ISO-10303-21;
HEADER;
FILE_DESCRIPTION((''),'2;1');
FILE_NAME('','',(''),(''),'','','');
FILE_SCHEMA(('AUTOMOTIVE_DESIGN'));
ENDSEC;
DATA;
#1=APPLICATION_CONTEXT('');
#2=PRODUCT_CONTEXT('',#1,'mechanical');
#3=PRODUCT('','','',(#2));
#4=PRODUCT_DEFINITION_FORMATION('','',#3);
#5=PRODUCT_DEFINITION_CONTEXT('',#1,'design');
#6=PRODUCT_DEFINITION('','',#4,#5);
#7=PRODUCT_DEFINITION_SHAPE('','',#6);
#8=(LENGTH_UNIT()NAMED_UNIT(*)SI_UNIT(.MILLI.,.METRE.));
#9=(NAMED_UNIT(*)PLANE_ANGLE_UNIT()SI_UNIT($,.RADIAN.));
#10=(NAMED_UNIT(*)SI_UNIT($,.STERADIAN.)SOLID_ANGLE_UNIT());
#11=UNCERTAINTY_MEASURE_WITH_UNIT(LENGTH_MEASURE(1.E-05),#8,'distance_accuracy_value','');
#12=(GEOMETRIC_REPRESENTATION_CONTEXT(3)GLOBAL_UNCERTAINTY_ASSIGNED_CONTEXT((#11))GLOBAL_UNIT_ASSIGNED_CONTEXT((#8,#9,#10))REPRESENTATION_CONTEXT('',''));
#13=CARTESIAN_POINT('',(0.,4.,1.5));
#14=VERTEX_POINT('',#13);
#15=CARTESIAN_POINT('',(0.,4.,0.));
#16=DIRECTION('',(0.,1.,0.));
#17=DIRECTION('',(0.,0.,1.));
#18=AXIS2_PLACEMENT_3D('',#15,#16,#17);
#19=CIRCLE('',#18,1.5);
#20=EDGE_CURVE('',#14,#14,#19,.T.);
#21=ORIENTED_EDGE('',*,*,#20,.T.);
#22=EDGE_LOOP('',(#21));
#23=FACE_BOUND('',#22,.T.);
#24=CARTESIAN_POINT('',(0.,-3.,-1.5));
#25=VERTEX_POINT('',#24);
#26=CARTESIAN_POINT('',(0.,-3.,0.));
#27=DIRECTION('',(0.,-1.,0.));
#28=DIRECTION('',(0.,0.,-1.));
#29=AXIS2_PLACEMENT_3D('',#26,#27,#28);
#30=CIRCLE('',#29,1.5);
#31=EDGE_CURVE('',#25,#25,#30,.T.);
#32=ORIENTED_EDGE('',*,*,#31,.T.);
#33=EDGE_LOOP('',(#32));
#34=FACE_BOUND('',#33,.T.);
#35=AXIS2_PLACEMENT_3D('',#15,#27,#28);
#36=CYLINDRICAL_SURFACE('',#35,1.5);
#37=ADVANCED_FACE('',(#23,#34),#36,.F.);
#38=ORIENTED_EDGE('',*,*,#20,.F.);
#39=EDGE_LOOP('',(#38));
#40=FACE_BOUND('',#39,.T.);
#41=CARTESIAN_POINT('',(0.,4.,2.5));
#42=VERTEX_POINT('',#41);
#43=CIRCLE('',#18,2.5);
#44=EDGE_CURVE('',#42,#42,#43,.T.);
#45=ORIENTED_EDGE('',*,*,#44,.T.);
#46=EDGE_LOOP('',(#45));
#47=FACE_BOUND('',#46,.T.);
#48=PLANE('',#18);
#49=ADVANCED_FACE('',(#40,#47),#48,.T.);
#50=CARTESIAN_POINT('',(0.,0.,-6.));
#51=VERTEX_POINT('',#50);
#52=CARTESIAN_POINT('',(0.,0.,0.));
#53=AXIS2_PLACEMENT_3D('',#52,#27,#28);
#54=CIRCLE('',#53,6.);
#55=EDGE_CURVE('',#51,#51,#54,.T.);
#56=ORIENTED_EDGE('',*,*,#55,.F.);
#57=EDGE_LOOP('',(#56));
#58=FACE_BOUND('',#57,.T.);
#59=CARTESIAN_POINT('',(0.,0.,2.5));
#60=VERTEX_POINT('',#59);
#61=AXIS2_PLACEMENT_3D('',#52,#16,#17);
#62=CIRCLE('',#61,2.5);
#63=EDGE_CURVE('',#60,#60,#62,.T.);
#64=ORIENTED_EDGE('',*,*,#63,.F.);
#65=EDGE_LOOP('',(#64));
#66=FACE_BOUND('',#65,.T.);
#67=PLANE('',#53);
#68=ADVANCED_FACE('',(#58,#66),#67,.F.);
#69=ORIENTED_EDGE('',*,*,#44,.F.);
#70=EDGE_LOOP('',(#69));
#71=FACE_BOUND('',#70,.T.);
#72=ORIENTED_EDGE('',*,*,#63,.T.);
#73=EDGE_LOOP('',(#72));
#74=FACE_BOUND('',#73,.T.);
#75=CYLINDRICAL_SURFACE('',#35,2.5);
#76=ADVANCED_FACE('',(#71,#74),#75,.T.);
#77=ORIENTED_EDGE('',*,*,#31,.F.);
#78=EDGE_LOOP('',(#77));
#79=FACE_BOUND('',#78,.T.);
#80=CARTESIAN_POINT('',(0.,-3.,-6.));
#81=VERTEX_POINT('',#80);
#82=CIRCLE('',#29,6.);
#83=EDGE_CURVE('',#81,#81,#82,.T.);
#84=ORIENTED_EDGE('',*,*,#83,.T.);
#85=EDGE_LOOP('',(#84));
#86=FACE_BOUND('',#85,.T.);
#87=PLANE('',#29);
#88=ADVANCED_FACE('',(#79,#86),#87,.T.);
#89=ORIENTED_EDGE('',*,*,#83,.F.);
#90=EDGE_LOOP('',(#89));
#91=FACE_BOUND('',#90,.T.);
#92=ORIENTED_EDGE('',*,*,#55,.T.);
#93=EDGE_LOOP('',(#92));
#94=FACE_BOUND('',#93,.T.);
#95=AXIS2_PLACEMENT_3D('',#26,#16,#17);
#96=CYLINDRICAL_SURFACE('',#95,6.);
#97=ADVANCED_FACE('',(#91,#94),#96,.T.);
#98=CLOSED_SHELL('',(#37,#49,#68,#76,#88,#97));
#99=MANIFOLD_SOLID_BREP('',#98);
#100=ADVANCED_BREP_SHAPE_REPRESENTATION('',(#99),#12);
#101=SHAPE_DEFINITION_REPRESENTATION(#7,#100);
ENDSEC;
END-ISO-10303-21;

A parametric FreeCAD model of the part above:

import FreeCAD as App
import Part
import Sketcher
Q = App.Units.Quantity

doc = App.newDocument("Part")
body = doc.addObject("PartDesign::Body", "Body")

sketch1 = body.newObject("Sketcher::SketchObject", "Sketch")
sketch1.AttachmentSupport = (doc.getObject("XZ_Plane"), [""])
sketch1.MapMode = "FlatFace"
sketch1.addGeometry([
    Part.Circle(App.Vector(0, 0, 0), App.Vector(0, 0, 1), 2.5),
    Part.Circle(App.Vector(0, 0, 0), App.Vector(0, 0, 1), 1.5),
], False)
sketch1.addConstraint([
    Sketcher.Constraint("Coincident", 0, 3, -1, 1),
    Sketcher.Constraint("Coincident", 1, 3, -1, 1),
    Sketcher.Constraint("Diameter", 0, Q("5 mm")),
    Sketcher.Constraint("Diameter", 1, Q("3 mm")),
])
pad1 = body.newObject("PartDesign::Pad", "Pad")
pad1.Profile = sketch1
pad1.Length = 4
pad1.Reversed = True

sketch2 = body.newObject("Sketcher::SketchObject", "Sketch001")
sketch2.AttachmentSupport = (doc.getObject("XZ_Plane"), [""])
sketch2.MapMode = "FlatFace"
sketch2.AttachmentOffset = App.Placement(App.Vector(0, 0, 3), App.Rotation())
sketch2.addGeometry([
    Part.Circle(App.Vector(0, 0, 0), App.Vector(0, 0, 1), 6),
    Part.Circle(App.Vector(0, 0, 0), App.Vector(0, 0, 1), 1.5),
], False)
sketch2.addConstraint([
    Sketcher.Constraint("Coincident", 0, 3, -1, 1),
    Sketcher.Constraint("Coincident", 1, 3, -1, 1),
    Sketcher.Constraint("Diameter", 0, Q("12 mm")),
    Sketcher.Constraint("Diameter", 1, Q("3 mm")),
])
pad2 = body.newObject("PartDesign::Pad", "Pad001")
pad2.Profile = sketch2
pad2.Length = 3
pad2.Reversed = True

doc.recompute()
